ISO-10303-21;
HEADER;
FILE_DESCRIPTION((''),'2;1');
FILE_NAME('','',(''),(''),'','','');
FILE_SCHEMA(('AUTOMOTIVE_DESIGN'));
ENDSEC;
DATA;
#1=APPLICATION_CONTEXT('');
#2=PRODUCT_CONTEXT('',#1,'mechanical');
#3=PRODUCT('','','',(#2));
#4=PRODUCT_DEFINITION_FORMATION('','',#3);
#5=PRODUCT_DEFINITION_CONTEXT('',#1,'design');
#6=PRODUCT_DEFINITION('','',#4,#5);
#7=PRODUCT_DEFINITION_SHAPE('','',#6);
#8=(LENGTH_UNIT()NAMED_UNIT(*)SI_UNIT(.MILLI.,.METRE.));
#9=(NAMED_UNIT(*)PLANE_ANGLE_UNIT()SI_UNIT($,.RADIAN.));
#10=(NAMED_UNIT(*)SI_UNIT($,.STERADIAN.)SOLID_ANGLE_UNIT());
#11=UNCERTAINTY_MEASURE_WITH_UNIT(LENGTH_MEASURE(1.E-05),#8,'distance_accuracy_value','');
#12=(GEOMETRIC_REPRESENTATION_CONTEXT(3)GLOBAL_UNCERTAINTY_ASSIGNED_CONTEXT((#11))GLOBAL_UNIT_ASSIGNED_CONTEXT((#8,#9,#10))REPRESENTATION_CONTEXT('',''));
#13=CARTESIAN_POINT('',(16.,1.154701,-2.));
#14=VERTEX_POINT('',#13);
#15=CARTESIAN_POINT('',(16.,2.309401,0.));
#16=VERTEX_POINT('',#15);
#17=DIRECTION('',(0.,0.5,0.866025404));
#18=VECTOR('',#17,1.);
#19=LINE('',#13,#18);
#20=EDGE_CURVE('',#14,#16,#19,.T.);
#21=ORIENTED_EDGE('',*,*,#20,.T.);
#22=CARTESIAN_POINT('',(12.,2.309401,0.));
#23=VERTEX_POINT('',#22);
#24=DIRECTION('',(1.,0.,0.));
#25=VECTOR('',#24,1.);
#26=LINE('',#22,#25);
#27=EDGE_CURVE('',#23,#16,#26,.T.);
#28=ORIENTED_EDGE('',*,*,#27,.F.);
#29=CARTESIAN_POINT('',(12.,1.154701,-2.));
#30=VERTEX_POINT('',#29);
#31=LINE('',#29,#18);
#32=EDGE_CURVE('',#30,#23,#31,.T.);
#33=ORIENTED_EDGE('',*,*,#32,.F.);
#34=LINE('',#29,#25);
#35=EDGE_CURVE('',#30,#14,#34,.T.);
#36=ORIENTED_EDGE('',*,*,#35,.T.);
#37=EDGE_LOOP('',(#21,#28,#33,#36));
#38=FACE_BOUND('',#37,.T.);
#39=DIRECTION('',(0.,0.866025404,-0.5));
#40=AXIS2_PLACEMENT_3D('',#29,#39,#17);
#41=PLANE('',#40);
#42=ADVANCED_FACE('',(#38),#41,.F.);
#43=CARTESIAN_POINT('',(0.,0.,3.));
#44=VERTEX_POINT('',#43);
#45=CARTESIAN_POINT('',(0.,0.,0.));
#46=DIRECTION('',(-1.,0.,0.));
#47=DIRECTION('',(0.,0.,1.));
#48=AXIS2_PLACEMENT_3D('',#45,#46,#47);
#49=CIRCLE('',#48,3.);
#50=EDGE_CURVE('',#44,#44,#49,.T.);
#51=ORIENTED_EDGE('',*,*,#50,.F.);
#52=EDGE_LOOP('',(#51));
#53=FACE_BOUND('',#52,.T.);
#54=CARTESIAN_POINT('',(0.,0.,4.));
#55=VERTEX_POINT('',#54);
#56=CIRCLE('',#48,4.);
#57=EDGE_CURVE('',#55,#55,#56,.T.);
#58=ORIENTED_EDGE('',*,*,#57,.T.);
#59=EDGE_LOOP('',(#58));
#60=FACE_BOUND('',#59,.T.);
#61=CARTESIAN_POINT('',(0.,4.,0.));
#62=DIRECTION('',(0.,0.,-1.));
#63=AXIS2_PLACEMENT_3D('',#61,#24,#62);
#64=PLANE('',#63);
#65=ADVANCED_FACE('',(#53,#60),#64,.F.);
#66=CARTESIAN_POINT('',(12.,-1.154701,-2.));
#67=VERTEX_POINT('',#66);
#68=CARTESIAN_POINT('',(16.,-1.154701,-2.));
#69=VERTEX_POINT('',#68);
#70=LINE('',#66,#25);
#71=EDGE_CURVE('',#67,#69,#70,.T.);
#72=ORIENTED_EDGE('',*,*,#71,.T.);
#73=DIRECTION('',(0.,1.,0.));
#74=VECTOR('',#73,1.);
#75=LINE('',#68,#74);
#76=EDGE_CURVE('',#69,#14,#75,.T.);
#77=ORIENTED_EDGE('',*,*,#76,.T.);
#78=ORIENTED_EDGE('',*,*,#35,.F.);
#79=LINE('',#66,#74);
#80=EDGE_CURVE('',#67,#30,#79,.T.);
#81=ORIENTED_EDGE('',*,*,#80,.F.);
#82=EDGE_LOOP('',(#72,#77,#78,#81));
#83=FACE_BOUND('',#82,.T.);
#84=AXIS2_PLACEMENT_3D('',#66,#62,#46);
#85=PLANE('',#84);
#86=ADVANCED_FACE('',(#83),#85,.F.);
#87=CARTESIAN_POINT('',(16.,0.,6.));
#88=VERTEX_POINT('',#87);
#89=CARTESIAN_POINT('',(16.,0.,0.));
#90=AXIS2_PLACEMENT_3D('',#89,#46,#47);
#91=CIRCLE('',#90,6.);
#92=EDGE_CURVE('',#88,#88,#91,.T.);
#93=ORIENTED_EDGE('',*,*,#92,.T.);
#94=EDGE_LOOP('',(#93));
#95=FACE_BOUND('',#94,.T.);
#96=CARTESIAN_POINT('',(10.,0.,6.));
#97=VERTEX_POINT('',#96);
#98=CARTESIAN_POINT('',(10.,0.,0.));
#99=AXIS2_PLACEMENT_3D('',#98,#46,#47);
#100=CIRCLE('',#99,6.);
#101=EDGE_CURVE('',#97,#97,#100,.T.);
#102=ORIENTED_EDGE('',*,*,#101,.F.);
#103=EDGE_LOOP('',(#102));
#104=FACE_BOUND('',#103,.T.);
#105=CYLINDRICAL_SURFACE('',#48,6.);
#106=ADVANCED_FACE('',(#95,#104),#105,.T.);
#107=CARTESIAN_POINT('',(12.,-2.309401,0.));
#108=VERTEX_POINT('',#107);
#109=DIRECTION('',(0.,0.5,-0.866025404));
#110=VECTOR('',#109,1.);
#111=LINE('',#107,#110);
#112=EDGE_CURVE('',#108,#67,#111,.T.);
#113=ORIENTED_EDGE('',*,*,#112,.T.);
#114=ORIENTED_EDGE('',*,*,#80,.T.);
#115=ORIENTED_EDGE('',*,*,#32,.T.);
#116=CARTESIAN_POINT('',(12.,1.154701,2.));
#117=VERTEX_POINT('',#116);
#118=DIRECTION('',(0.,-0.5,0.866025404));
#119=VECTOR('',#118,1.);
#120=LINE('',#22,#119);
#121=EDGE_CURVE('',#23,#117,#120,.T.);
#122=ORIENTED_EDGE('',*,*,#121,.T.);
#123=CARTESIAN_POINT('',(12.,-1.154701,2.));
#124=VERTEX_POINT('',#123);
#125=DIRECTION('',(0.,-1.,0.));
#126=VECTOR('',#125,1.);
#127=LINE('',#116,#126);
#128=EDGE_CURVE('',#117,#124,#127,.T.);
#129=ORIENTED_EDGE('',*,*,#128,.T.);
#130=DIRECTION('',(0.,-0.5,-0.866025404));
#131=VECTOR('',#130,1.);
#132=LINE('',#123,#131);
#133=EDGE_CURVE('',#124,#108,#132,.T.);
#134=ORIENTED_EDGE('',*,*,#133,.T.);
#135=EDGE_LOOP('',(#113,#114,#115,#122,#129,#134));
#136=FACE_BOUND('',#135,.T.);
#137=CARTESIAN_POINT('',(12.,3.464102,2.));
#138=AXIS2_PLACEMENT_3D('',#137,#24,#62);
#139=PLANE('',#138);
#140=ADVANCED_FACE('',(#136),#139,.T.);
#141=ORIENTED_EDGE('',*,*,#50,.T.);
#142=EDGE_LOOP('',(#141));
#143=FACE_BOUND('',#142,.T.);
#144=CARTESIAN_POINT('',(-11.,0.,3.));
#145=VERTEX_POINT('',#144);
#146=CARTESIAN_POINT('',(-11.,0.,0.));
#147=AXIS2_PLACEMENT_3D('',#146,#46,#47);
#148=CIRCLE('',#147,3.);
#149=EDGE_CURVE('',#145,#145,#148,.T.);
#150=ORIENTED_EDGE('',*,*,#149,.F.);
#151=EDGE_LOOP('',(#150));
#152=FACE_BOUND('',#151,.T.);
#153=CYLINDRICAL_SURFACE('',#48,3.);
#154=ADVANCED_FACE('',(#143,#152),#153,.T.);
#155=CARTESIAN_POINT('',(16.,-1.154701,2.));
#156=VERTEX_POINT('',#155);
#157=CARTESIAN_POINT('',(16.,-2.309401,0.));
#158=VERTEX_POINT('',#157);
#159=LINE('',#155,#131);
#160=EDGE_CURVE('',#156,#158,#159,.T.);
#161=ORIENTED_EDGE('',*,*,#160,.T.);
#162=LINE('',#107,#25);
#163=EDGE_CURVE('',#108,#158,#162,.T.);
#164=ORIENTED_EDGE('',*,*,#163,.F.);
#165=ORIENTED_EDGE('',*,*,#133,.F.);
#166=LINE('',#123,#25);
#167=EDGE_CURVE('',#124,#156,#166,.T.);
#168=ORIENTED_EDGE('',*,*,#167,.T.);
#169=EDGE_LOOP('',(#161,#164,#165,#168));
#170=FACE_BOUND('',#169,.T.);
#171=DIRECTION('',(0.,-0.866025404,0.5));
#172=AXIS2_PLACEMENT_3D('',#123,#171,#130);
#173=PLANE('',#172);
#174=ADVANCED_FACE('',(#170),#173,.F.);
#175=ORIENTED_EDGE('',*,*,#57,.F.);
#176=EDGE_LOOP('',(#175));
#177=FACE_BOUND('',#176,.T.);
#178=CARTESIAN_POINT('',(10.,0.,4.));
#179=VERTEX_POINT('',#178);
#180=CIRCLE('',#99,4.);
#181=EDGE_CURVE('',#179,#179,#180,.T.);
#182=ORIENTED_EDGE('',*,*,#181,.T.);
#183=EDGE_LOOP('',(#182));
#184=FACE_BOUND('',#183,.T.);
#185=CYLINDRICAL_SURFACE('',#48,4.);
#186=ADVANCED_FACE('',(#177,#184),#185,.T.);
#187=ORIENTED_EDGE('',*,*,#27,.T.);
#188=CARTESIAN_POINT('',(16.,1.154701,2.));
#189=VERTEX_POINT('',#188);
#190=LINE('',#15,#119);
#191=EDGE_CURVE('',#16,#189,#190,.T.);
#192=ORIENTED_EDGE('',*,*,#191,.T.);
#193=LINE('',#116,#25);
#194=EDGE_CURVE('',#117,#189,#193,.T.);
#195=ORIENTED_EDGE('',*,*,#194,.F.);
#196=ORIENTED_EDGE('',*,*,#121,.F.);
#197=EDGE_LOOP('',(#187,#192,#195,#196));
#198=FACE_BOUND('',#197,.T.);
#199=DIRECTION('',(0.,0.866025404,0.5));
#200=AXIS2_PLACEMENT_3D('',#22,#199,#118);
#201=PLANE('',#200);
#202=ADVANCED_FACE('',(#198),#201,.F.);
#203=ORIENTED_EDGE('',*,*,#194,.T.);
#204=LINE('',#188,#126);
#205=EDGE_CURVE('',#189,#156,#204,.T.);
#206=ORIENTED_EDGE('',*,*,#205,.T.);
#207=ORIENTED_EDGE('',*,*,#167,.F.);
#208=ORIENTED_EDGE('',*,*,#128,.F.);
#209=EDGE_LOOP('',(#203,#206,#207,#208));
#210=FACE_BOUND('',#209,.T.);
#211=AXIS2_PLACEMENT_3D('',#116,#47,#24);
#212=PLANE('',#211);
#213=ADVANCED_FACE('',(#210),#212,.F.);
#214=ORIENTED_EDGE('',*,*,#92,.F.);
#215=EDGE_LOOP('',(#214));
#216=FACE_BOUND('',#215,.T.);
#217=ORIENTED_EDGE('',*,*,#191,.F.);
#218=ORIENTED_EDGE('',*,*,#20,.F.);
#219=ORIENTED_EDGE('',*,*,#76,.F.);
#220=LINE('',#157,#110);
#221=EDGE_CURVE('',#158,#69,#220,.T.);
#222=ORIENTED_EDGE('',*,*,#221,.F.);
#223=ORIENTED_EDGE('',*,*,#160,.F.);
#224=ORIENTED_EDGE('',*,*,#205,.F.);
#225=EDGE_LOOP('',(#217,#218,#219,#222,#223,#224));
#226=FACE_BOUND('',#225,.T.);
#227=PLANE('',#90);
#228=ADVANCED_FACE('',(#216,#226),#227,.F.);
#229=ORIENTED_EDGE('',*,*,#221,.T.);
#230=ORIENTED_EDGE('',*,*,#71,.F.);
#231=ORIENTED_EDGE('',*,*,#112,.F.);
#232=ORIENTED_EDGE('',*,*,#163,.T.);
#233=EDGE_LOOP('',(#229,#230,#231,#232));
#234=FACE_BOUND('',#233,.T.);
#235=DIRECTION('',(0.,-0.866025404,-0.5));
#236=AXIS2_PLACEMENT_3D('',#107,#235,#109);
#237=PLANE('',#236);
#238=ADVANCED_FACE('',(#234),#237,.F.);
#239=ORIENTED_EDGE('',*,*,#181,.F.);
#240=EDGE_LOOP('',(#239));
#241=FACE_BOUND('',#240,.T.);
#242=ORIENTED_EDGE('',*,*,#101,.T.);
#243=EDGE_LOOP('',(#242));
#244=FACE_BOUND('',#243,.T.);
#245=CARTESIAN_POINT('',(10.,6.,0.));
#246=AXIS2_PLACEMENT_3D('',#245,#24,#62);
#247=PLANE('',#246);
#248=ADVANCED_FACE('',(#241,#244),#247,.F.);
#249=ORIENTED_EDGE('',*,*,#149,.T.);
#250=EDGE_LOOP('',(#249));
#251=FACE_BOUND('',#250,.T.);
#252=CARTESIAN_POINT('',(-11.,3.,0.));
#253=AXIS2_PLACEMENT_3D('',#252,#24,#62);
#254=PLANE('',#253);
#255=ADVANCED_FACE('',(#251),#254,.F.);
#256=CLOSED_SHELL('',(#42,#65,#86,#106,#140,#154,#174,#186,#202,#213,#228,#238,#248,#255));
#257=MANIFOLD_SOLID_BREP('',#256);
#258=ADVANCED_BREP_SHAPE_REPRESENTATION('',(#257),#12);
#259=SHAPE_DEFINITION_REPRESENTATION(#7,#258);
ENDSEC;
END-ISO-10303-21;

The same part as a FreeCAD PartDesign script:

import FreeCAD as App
import Part
import Sketcher

V = App.Vector
Q = App.Units.Quantity


def add_polygon(sketch, points):
    """Adds a closed chain of lines whose ends are joined by coincident constraints."""
    first, n = sketch.GeometryCount, len(points)
    for a, b in zip(points, points[1:] + points[:1]):
        sketch.addGeometry(Part.LineSegment(App.Vector(*a, 0), App.Vector(*b, 0)), False)
    for i in range(n):
        sketch.addConstraint(Sketcher.Constraint("Coincident", first + i, 2, first + (i + 1) % n, 1))

doc = App.newDocument("Part")
body = doc.addObject("PartDesign::Body", "Body")

sketch1 = body.newObject("Sketcher::SketchObject", "Sketch")
sketch1.AttachmentSupport = (doc.getObject("XY_Plane"), [""])
sketch1.MapMode = "FlatFace"
add_polygon(sketch1, [(16, 0), (16, 6), (10, 6), (10, 4), (0, 4), (0, 3), (-11, 3), (-11, 0)])
sketch1.addConstraint([
    Sketcher.Constraint("Vertical", 0),
    Sketcher.Constraint("Horizontal", 1),
    Sketcher.Constraint("Vertical", 2),
    Sketcher.Constraint("Horizontal", 3),
    Sketcher.Constraint("Vertical", 4),
    Sketcher.Constraint("Horizontal", 5),
    Sketcher.Constraint("Vertical", 6),
    Sketcher.Constraint("Horizontal", 7),
    Sketcher.Constraint("PointOnObject", 3, 2, -2),
    Sketcher.Constraint("PointOnObject", 6, 2, -1),
    Sketcher.Constraint("Equal", 1, 0),
    Sketcher.Constraint("DistanceX", 1, 2, 1, 1, 6.0),
    Sketcher.Constraint("DistanceX", 3, 2, 3, 1, 10.0),
    Sketcher.Constraint("DistanceX", 5, 2, 5, 1, 11.0),
    Sketcher.Constraint("DistanceY", 2, 2, 2, 1, 2.0),
    Sketcher.Constraint("DistanceY", 4, 2, 4, 1, 1.0),
])
revolution = body.newObject("PartDesign::Revolution", "Revolution")
revolution.Profile = sketch1
revolution.ReferenceAxis = (sketch1, ["H_Axis"])
revolution.Angle = 360

sketch2 = body.newObject("Sketcher::SketchObject", "Sketch001")
sketch2.AttachmentSupport = (doc.getObject("YZ_Plane"), [""])
sketch2.MapMode = "FlatFace"
sketch2.AttachmentOffset = App.Placement(V(0, 0, 16), App.Rotation())
add_polygon(sketch2, [(2.309401, 0), (1.154701, 2), (-1.154701, 2), (-2.309401, 0), (-1.154701, -2), (1.154701, -2)])
sketch2.addConstraint([
    Sketcher.Constraint("Horizontal", 1),
    Sketcher.Constraint("Horizontal", 4),
    Sketcher.Constraint("Symmetric", 0, 2, 3, 2, -1, 1),
    Sketcher.Constraint("Symmetric", 2, 2, 5, 2, -1, 1),
    Sketcher.Constraint("PointOnObject", 2, 2, -1),
    Sketcher.Constraint("Parallel", 2, 5),
    Sketcher.Constraint("Vertical", 1, 2, 3, 2),
    Sketcher.Constraint("Angle", 0, Q("120 deg")),
    Sketcher.Constraint("DistanceY", -1, 1, 0, 2, 2.0),
    Sketcher.Constraint("DistanceX", 1, 2, 1, 1, 2.309401),
])
pocket1 = body.newObject("PartDesign::Pocket", "Pocket")
pocket1.Profile = sketch2
pocket1.Length = 4

doc.recompute()
